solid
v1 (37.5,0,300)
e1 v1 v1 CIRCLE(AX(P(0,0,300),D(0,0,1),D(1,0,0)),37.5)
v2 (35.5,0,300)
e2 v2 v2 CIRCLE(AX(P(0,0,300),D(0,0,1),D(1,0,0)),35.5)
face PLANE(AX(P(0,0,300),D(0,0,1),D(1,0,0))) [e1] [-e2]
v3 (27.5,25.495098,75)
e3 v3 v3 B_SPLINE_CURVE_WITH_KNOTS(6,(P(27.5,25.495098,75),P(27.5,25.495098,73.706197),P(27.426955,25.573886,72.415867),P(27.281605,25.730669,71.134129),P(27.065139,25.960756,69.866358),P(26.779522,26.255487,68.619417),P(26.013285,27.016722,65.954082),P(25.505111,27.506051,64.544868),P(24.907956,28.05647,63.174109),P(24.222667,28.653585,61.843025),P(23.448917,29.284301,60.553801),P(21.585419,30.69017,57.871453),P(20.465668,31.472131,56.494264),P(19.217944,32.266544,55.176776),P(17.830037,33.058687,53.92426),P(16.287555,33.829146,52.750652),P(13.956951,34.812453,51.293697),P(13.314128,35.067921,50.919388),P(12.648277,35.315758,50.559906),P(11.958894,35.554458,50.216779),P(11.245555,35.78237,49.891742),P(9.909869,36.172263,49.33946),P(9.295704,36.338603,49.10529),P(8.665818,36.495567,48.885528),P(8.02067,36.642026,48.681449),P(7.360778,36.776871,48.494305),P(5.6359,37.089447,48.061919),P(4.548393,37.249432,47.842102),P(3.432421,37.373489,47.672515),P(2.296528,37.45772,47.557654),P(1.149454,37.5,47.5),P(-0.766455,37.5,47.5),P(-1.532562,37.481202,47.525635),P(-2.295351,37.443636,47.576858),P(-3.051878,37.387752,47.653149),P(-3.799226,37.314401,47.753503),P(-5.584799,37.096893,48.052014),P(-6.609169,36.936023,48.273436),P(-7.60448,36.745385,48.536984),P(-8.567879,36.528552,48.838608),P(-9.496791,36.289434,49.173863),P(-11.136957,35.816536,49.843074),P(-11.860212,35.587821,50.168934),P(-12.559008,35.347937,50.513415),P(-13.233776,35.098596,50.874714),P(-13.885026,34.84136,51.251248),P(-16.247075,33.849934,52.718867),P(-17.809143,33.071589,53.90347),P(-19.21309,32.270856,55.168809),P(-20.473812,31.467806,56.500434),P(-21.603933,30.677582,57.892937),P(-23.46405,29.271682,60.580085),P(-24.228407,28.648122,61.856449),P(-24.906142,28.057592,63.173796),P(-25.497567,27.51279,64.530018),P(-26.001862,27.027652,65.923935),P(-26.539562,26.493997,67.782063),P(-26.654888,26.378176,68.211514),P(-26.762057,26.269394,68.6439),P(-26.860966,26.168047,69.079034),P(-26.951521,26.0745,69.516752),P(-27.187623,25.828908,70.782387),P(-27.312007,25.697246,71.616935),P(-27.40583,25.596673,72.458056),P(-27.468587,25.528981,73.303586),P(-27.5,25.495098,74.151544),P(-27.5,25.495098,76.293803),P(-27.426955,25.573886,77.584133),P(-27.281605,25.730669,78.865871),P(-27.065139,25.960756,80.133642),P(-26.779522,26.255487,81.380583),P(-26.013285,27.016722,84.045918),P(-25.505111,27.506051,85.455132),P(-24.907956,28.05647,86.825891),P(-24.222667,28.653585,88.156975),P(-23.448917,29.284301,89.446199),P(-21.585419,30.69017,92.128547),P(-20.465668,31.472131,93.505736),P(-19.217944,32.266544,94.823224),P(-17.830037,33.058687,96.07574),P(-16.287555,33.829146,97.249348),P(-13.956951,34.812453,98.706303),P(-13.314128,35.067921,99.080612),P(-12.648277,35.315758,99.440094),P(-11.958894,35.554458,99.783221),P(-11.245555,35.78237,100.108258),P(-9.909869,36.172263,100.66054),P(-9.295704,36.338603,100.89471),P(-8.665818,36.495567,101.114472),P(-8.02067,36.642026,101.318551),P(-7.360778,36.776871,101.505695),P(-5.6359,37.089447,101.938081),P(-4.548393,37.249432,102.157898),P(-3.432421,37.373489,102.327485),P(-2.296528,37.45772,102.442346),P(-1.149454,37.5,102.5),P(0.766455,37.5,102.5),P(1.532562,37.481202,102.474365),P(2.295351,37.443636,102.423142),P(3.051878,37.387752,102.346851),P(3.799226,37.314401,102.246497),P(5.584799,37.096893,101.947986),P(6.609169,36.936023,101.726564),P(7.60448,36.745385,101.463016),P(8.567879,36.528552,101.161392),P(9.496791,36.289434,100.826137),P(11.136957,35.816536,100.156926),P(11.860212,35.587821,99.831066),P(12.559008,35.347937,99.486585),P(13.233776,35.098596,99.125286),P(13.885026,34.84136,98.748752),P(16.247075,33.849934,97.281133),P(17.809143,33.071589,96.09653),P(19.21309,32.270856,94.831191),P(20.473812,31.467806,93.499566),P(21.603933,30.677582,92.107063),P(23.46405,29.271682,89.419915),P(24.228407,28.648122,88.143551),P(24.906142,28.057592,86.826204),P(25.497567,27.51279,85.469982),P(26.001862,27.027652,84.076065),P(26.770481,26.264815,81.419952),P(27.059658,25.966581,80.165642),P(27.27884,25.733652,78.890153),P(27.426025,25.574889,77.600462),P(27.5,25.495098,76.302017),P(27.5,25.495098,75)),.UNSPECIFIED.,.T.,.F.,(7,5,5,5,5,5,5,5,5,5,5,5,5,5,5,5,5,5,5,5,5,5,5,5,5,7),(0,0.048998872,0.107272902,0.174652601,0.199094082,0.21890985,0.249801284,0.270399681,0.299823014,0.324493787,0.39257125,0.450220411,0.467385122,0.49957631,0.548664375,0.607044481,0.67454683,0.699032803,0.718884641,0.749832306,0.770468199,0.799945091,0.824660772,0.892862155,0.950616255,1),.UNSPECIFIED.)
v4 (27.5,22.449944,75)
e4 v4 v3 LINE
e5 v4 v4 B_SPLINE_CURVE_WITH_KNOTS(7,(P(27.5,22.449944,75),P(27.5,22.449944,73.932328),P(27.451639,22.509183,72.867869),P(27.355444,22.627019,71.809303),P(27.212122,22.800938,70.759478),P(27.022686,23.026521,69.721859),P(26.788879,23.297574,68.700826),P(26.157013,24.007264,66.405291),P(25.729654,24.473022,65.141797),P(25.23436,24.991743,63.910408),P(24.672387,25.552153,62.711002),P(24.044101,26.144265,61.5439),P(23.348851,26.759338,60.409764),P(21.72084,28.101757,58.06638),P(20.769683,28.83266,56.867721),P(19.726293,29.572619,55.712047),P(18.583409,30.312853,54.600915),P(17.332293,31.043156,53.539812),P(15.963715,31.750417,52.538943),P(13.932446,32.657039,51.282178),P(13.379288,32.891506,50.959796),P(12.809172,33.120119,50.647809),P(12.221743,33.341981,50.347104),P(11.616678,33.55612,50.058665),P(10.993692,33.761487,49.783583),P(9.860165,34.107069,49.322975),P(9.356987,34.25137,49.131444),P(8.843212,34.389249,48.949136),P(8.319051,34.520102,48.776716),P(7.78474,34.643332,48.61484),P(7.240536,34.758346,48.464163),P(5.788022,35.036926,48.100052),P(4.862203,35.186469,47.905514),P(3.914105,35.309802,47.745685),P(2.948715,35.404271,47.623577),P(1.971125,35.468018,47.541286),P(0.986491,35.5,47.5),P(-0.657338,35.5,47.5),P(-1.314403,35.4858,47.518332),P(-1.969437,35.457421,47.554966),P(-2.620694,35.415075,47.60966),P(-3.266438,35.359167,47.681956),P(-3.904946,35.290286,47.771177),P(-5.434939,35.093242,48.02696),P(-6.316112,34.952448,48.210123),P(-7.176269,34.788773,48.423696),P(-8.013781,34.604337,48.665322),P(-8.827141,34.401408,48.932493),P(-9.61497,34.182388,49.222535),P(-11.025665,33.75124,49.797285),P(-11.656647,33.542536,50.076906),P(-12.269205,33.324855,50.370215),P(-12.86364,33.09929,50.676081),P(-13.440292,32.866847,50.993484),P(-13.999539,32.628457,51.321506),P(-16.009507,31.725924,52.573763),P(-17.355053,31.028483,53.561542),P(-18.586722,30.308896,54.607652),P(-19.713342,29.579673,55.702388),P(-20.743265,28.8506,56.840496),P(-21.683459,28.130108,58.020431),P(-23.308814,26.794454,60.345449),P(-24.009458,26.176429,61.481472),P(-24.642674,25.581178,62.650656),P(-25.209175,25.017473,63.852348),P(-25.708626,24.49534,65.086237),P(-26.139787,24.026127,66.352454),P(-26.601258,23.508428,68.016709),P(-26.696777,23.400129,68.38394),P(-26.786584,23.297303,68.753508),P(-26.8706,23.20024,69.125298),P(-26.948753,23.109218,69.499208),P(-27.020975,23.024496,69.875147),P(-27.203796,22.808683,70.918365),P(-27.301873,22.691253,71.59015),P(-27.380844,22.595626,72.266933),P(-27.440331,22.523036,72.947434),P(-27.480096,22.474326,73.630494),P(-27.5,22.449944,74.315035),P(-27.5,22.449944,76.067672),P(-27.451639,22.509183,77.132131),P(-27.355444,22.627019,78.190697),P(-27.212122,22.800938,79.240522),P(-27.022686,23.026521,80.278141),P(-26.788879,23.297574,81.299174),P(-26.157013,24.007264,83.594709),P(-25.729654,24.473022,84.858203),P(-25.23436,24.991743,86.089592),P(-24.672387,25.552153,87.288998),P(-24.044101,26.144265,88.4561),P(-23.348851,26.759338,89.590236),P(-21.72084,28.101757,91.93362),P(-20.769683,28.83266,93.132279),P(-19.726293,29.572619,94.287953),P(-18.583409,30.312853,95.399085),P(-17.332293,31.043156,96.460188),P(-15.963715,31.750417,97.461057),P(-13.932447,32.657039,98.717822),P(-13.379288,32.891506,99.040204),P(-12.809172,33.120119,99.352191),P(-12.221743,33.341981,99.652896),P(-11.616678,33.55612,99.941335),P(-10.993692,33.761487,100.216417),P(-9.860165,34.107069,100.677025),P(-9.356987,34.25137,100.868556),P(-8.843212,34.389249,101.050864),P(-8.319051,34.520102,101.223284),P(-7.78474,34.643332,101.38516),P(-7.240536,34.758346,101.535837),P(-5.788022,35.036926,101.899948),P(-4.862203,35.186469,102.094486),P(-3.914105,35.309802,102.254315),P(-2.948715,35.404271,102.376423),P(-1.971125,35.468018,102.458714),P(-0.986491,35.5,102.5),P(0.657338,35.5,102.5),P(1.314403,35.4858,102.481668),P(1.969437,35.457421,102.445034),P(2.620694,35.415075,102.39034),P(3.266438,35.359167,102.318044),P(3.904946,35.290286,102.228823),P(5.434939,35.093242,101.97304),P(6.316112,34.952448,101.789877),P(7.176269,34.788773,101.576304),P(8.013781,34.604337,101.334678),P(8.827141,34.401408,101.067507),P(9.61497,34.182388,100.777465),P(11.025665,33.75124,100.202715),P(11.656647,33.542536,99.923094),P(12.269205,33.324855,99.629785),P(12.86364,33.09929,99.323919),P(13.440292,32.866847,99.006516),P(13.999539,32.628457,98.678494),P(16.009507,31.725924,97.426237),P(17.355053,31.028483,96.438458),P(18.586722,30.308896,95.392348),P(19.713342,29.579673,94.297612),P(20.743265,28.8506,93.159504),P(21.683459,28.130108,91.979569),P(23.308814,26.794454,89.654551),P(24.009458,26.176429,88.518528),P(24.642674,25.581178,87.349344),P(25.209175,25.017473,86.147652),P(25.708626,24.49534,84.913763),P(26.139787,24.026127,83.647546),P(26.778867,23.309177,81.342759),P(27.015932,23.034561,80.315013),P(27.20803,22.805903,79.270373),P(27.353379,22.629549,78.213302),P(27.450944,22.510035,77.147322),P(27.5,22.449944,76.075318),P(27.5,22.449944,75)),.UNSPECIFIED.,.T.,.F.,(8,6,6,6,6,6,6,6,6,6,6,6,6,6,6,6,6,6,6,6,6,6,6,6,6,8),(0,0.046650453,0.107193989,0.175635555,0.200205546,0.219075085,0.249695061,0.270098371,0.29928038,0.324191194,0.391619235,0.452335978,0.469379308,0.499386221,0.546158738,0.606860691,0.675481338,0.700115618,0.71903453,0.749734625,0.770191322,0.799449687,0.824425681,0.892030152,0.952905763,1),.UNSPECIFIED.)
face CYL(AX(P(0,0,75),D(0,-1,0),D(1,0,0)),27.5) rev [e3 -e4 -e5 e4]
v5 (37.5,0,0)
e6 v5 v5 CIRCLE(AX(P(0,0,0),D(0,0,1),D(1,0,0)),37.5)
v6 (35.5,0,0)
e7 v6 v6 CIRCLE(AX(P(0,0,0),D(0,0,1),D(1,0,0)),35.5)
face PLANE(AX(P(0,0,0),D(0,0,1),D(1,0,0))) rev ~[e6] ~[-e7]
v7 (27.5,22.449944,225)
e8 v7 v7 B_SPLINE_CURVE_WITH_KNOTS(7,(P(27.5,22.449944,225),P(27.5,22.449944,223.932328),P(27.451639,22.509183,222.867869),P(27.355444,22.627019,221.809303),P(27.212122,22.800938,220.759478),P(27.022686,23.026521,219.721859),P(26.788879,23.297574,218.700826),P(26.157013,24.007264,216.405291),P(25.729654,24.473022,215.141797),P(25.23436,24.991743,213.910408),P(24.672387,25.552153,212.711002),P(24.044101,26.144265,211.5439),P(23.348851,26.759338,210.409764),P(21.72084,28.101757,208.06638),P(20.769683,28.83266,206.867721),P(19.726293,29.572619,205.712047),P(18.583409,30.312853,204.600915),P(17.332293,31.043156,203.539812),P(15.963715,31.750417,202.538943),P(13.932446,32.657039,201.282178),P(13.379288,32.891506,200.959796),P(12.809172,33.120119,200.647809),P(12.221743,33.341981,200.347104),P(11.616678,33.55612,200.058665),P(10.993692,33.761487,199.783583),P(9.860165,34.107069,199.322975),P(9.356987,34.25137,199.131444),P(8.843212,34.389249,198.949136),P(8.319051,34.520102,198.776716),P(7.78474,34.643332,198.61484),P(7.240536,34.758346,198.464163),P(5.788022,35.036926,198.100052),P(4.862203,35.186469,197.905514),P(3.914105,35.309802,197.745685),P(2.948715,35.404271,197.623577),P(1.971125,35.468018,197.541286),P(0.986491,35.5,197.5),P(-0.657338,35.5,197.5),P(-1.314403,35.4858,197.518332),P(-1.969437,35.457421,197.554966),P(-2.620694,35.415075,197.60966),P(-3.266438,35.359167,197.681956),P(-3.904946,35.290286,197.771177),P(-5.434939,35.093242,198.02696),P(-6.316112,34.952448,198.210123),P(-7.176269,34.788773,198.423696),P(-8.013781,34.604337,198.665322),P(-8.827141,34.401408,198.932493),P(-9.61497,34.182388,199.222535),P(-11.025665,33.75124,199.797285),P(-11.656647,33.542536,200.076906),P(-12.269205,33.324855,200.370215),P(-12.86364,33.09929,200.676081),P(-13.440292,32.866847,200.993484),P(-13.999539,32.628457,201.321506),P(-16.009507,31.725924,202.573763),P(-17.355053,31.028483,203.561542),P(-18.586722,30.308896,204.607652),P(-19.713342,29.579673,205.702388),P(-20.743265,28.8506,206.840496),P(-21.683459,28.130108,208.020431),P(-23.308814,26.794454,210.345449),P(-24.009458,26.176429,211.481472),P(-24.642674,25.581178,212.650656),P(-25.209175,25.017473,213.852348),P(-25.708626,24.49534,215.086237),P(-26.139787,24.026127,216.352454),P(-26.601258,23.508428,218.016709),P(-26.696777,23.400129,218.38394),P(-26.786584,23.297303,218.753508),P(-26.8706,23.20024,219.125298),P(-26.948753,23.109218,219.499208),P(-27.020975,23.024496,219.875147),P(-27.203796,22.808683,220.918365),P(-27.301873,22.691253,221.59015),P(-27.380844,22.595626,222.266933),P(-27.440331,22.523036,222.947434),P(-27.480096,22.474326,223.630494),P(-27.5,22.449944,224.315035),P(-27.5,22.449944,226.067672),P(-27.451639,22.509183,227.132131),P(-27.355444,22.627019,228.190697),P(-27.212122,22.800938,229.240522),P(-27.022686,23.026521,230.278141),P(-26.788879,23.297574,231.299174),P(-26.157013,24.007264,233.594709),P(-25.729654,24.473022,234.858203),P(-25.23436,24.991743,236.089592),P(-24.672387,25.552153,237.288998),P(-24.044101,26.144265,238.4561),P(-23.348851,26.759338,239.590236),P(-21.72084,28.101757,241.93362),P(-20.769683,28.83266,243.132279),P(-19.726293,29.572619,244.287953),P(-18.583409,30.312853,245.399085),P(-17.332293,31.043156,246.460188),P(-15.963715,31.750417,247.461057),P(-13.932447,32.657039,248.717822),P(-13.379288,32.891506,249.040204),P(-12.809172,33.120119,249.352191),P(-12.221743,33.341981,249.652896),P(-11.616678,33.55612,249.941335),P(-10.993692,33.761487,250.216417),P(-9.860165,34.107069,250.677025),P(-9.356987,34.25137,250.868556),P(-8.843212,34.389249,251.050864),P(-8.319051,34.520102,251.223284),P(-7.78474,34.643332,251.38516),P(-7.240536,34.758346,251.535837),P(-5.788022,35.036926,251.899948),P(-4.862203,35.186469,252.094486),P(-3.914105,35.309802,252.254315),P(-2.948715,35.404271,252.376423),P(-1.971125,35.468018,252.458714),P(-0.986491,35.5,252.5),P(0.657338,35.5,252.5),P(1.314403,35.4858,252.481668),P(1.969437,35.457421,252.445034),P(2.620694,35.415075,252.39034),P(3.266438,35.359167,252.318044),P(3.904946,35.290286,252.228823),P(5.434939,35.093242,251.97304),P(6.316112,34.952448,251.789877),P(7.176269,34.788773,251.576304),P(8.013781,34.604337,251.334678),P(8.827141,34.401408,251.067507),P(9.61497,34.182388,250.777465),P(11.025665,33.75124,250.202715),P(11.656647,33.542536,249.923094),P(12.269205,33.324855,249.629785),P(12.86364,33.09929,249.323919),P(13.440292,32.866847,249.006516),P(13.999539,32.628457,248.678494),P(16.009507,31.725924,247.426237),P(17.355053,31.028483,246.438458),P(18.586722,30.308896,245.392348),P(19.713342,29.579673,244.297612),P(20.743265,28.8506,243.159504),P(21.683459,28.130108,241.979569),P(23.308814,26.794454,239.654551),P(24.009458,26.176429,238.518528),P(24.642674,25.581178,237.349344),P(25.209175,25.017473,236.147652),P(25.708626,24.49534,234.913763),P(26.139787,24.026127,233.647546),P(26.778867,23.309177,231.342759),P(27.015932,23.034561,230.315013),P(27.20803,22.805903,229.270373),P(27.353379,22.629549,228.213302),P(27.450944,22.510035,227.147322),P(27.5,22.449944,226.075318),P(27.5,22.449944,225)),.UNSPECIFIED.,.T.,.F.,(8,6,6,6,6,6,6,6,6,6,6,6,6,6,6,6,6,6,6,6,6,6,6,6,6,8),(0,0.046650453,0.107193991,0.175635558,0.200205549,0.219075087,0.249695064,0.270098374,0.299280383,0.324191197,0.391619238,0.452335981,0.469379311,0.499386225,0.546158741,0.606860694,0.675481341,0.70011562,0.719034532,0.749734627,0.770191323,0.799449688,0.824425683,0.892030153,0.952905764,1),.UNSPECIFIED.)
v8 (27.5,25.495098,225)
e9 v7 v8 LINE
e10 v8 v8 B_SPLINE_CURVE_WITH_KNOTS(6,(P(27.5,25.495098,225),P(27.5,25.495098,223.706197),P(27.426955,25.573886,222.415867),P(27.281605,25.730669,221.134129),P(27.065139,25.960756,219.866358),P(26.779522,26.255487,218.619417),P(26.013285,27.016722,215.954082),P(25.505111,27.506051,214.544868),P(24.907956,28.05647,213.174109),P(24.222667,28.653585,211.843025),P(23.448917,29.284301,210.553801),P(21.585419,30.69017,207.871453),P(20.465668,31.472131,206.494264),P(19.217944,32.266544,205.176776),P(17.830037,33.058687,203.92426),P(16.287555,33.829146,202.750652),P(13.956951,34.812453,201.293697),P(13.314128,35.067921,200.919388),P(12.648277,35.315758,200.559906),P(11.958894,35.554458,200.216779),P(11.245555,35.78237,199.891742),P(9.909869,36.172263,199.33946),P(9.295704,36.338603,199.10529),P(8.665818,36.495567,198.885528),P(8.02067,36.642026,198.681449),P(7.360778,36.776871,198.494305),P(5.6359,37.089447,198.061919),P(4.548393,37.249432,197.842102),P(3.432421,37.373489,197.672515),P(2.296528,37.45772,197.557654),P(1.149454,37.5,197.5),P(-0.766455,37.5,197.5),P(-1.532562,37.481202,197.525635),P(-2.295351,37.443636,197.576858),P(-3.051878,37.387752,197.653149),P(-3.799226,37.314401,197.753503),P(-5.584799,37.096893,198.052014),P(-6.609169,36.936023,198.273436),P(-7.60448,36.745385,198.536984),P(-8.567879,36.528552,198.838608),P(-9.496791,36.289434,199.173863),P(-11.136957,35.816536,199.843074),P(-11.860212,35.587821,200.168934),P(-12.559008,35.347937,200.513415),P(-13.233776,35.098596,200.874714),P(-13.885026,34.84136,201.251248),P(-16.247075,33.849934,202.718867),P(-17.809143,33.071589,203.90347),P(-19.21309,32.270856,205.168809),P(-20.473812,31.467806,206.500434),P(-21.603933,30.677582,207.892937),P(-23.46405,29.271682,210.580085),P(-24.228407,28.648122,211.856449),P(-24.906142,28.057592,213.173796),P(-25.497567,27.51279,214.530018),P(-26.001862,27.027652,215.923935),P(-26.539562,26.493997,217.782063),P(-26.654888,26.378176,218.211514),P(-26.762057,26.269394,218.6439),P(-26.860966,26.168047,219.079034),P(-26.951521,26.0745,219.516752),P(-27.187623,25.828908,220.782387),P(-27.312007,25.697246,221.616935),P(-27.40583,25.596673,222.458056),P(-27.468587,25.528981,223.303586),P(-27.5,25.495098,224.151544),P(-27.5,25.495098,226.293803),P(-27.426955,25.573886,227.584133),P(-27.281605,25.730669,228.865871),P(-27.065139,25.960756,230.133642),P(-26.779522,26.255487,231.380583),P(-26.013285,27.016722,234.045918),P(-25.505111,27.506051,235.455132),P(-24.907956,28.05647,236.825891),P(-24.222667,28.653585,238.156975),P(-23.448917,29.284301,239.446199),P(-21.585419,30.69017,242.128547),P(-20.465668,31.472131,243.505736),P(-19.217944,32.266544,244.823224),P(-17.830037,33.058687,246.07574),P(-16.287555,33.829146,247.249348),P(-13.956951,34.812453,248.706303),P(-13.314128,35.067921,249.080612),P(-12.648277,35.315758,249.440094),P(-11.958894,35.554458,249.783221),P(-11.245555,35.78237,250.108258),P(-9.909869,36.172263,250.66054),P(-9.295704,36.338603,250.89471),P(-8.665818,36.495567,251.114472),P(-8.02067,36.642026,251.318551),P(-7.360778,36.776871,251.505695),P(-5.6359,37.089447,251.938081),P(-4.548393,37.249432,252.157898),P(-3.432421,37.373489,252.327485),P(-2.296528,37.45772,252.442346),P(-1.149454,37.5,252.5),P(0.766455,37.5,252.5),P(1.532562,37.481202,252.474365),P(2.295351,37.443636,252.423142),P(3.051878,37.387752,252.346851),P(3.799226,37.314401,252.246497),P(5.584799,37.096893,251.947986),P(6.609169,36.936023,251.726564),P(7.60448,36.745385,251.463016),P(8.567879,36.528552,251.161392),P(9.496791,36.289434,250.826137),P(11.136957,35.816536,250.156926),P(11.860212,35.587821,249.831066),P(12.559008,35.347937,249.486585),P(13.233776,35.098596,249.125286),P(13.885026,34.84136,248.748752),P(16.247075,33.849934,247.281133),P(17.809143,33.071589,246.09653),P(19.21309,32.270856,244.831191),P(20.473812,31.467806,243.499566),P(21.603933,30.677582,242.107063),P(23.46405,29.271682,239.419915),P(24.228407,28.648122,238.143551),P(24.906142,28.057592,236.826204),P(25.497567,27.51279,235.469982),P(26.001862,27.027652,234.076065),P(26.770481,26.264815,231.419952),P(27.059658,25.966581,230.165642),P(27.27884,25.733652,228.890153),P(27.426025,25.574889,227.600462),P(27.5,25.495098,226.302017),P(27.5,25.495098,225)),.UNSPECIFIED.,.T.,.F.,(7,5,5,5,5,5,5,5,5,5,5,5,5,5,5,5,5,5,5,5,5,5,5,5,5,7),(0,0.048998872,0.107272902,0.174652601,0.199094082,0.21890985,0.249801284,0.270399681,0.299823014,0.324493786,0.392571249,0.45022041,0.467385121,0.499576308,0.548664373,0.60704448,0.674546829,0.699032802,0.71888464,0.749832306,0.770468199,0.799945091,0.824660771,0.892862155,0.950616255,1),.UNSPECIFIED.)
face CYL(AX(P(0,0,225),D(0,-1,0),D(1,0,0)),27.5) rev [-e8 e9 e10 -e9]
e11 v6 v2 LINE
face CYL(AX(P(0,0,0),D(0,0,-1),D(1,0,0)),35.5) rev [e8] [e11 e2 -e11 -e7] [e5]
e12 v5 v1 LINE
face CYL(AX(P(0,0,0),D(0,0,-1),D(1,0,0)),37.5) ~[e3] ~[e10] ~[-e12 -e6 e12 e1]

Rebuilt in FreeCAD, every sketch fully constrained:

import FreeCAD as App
import Part
import Sketcher
from FreeCAD import Vector
Q = App.Units.Quantity

doc = App.newDocument("Part")
params = doc.addObject("Spreadsheet::Sheet", "Params")
for row, (alias, value) in enumerate([
    ("sketch1_diameter", "75 mm"),
    ("sketch1_diameter2", "71 mm"),
    ("pad1_length", "300 mm"),
    ("sketch2_diameter", "55 mm"),
    ("pocket1_length", "100 mm"),
], start=1):
    params.set(f"A{row}", alias)
    params.set(f"B{row}", "=" + value)
    params.setAlias(f"B{row}", alias)

body = doc.addObject("PartDesign::Body", "Body")

sketch1 = body.newObject("Sketcher::SketchObject", "Sketch")
sketch1.AttachmentSupport = (doc.getObject("XY_Plane"), [""])
sketch1.MapMode = "FlatFace"
sketch1.addGeometry(Part.Circle(Vector(0, 0, 0), Vector(0, 0, 1), 38), False)
sketch1.addGeometry(Part.Circle(Vector(0, 0, 0), Vector(0, 0, 1), 36), False)
sketch1.addConstraint(Sketcher.Constraint("Coincident", 0, 3, -1, 1))
sketch1.addConstraint(Sketcher.Constraint("Coincident", 1, 3, -1, 1))
sketch1.addConstraint(Sketcher.Constraint("Diameter", 0, Q("75 mm")))
sketch1.addConstraint(Sketcher.Constraint("Diameter", 1, Q("71 mm")))
sketch1.setExpression("Constraints[2]", "Params.sketch1_diameter")
sketch1.setExpression("Constraints[3]", "Params.sketch1_diameter2")
pad1 = body.newObject("PartDesign::Pad", "Pad")
pad1.Profile = sketch1
pad1.setExpression("Length", "Params.pad1_length")

sketch2 = body.newObject("Sketcher::SketchObject", "Sketch001")
sketch2.AttachmentSupport = (doc.getObject("XZ_Plane"), [""])
sketch2.MapMode = "FlatFace"
sketch2.addGeometry(Part.Circle(Vector(0, 75, 0), Vector(0, 0, 1), 28), False)
sketch2.addGeometry(Part.Circle(Vector(0, 225, 0), Vector(0, 0, 1), 28), False)
sketch2.addConstraint(Sketcher.Constraint("Equal", 0, 1))
sketch2.addConstraint(Sketcher.Constraint("PointOnObject", 0, 3, -2))
sketch2.addConstraint(Sketcher.Constraint("PointOnObject", 1, 3, -2))
sketch2.addConstraint(Sketcher.Constraint("Diameter", 0, Q("55 mm")))
sketch2.addConstraint(Sketcher.Constraint("DistanceY", -1, 1, 0, 3, Q("75 mm")))
sketch2.addConstraint(Sketcher.Constraint("DistanceY", -1, 1, 1, 3, Q("225 mm")))
sketch2.setExpression("Constraints[3]", "Params.sketch2_diameter")
pocket1 = body.newObject("PartDesign::Pocket", "Pocket")
pocket1.Profile = sketch2
pocket1.setExpression("Length", "Params.pocket1_length")

doc.recompute()
